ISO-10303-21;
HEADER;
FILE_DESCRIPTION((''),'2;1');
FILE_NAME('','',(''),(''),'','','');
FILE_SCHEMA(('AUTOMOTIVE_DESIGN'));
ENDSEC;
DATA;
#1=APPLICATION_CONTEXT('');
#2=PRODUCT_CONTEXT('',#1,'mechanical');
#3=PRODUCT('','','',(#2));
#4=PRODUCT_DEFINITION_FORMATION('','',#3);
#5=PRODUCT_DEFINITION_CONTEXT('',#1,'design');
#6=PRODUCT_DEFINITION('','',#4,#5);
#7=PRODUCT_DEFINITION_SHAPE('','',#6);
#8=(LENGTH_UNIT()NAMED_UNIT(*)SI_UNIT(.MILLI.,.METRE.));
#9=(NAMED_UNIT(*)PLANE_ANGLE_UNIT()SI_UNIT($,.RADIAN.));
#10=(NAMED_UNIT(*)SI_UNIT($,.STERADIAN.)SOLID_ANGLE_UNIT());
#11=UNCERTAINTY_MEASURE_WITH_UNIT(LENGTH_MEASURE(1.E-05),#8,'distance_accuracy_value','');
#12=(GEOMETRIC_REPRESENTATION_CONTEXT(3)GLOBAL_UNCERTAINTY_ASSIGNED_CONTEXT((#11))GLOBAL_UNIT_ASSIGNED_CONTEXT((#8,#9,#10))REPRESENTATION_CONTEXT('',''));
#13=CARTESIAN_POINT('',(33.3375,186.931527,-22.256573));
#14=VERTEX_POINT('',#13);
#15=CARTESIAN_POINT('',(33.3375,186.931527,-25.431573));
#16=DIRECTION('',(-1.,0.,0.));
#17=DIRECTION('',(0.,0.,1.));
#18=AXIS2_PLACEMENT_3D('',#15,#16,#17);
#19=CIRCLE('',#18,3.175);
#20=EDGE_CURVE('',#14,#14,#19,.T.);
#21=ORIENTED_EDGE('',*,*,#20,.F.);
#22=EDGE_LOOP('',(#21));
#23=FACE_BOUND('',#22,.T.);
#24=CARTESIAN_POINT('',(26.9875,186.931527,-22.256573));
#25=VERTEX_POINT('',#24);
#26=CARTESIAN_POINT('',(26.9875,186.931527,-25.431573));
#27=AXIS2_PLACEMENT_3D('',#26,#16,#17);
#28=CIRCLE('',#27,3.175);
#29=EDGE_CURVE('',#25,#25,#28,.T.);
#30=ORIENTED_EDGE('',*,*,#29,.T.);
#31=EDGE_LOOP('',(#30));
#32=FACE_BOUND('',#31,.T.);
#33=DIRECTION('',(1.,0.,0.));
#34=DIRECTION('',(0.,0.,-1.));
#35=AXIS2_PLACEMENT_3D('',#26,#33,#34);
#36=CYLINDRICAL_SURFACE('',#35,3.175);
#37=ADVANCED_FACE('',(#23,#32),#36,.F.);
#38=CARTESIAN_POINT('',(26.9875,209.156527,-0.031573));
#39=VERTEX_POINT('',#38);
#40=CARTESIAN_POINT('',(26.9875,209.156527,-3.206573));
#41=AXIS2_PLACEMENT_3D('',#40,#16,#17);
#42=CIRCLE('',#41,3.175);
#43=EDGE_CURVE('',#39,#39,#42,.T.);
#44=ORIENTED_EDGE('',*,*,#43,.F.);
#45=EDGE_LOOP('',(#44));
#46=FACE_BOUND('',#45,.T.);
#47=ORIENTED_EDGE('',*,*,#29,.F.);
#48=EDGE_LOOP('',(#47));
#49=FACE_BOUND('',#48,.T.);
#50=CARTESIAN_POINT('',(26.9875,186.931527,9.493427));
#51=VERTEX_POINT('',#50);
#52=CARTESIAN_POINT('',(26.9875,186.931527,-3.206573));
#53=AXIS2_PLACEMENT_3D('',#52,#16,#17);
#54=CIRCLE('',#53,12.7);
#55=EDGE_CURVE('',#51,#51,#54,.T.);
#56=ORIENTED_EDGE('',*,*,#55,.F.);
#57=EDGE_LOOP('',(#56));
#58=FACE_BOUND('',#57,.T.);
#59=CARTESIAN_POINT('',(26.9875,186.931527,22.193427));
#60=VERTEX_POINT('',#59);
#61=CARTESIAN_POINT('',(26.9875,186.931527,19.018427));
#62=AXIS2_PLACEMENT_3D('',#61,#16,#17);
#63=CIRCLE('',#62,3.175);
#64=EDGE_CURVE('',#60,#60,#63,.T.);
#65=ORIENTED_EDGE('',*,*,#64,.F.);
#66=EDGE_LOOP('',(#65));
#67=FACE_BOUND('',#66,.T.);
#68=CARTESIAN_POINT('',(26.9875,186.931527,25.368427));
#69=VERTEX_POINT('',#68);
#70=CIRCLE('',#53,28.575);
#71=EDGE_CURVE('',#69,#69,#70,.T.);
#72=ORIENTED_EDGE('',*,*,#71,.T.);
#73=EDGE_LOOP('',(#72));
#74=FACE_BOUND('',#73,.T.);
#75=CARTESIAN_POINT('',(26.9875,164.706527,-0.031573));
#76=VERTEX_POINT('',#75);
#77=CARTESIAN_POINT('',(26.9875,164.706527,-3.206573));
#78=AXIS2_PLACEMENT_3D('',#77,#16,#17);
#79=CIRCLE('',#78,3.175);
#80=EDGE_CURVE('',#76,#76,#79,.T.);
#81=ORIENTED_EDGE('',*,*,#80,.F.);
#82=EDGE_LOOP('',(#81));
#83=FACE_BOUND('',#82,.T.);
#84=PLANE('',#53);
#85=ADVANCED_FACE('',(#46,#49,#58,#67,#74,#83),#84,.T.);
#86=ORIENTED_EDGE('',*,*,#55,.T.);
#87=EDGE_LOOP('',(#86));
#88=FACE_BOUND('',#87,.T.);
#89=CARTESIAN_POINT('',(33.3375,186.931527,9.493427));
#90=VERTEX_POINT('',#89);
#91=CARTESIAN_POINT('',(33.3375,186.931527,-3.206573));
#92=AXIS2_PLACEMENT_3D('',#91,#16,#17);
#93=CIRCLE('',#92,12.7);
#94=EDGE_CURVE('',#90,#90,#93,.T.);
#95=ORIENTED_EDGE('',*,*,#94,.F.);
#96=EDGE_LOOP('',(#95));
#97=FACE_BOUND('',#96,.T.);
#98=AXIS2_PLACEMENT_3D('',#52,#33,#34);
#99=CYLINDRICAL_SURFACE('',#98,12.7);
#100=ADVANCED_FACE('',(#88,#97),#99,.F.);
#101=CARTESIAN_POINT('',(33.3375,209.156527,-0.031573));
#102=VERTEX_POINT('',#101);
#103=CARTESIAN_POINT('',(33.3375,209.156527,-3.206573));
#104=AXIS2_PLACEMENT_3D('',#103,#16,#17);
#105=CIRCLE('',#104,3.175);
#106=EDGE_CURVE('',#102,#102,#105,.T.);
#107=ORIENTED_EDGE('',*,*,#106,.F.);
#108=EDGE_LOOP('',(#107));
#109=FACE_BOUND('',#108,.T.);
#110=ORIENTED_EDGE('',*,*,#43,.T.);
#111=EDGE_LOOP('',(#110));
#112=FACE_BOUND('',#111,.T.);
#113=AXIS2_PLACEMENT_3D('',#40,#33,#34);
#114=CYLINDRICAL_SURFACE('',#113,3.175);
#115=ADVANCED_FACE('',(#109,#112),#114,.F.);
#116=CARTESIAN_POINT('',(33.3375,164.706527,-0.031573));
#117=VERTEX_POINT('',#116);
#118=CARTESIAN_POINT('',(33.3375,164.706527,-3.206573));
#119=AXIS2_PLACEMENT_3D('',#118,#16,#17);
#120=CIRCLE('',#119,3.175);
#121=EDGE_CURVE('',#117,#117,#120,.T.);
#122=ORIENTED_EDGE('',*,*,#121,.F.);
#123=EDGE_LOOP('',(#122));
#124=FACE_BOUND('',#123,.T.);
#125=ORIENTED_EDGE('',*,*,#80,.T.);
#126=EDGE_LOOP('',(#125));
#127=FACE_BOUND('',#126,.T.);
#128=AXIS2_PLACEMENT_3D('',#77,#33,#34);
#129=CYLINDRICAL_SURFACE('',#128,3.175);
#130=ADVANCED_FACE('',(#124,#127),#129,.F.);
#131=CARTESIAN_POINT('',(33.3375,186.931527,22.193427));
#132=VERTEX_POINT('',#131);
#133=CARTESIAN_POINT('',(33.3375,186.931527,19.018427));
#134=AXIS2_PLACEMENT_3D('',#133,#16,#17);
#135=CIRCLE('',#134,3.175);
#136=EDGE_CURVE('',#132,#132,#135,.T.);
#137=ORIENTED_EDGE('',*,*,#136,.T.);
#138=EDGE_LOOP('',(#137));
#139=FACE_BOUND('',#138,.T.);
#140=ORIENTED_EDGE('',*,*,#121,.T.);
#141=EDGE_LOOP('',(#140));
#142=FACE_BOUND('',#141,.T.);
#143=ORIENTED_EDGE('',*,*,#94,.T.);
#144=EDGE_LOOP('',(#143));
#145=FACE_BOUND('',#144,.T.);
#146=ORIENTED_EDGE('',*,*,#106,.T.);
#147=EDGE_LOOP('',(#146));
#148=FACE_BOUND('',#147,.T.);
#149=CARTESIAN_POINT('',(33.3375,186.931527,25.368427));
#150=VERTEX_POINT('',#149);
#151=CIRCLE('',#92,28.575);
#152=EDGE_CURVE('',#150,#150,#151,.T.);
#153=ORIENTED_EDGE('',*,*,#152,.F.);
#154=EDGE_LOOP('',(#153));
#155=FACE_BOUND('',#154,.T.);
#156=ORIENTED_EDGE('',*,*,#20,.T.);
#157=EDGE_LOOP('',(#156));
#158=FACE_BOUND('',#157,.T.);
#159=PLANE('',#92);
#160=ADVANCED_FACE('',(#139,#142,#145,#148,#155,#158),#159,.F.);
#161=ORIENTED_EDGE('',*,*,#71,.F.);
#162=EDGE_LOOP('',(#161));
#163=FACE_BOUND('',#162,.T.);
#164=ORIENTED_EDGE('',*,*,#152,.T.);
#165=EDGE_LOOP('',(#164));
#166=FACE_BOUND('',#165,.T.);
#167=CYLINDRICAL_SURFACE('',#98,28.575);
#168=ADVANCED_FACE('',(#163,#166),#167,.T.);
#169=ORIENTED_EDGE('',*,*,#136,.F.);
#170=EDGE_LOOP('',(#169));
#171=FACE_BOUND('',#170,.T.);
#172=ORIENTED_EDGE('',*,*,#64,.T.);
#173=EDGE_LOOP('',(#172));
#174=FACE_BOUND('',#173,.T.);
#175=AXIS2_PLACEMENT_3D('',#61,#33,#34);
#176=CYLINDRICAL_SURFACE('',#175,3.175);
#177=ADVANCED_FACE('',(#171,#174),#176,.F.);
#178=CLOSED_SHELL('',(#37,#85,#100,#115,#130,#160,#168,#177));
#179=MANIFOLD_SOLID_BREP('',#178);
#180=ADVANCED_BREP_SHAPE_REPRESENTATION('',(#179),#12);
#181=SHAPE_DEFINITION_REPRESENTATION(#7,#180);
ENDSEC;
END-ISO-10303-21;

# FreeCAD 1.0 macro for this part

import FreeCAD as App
import Part
import Sketcher

V = App.Vector
Q = App.Units.Quantity

doc = App.newDocument("Part")
body = doc.addObject("PartDesign::Body", "Body")

# Sketch on YZ plane
sketch1 = body.newObject("Sketcher::SketchObject", "Sketch")
sketch1.AttachmentSupport = (doc.getObject("YZ_Plane"), [""])
sketch1.MapMode = "FlatFace"
sketch1.AttachmentOffset = App.Placement(V(0, 0, 1.3125 * 25.4), App.Rotation())
sketch1.addGeometry([
    Part.Circle(V(186.931527, -3.206573, 0), V(0, 0, 1), 28.575),  # 0
    Part.Circle(V(164.706527, -3.206573, 0), V(0, 0, 1), 3.175),  # 1
    Part.Circle(V(186.931527, -25.431573, 0), V(0, 0, 1), 3.175),  # 2
    Part.Circle(V(186.931527, -3.206573, 0), V(0, 0, 1), 12.7),  # 3
    Part.Circle(V(186.931527, 19.018427, 0), V(0, 0, 1), 3.175),  # 4
    Part.Circle(V(209.156527, -3.206573, 0), V(0, 0, 1), 3.175),  # 5
], False)
sketch1.addConstraint([
    Sketcher.Constraint("Coincident", 3, 3, 0, 3),
    Sketcher.Constraint("Equal", 1, 2),
    Sketcher.Constraint("Equal", 2, 4),
    Sketcher.Constraint("Equal", 4, 5),
    Sketcher.Constraint("Horizontal", 0, 3, 1, 3),
    Sketcher.Constraint("Horizontal", 3, 3, 5, 3),
    Sketcher.Constraint("Vertical", 0, 3, 2, 3),
    Sketcher.Constraint("Vertical", 3, 3, 4, 3),
    Sketcher.Constraint("Diameter", 3, Q("1 in")),
    Sketcher.Constraint("Diameter", 0, Q("2.25 in")),
    Sketcher.Constraint("Diameter", 1, Q("0.25 in")),
    Sketcher.Constraint("DistanceY", 2, 3, 4, 3, Q("1.75 in")),
    Sketcher.Constraint("DistanceX", 1, 3, 5, 3, Q("1.75 in")),
    Sketcher.Constraint("DistanceX", 1, 3, 0, 3, Q("0.875 in")),
    Sketcher.Constraint("DistanceY", 2, 3, 0, 3, Q("0.875 in")),
    Sketcher.Constraint("DistanceX", -1, 1, 0, 3, Q("186.931527 mm")),
    Sketcher.Constraint("DistanceY", 0, 3, -1, 1, Q("3.206573 mm")),
])
pad1 = body.newObject("PartDesign::Pad", "Pad")
pad1.Profile = sketch1
pad1.Length = Q("0.25 in")
pad1.Reversed = True

doc.recompute()
